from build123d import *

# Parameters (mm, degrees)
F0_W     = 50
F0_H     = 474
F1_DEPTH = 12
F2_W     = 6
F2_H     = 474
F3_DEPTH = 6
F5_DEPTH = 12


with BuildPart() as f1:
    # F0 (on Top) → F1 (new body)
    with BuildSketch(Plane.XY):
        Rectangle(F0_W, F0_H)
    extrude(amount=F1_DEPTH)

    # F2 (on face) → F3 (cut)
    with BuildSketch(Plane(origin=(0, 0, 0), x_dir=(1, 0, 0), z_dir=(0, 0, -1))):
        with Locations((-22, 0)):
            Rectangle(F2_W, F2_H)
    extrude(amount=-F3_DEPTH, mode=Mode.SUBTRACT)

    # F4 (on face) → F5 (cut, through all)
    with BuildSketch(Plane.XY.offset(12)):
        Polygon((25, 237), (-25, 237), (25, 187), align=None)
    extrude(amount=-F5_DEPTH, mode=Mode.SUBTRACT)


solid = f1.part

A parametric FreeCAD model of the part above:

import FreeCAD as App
import Part
import Sketcher
from FreeCAD import Vector

doc = App.newDocument("Part")
body = doc.addObject("PartDesign::Body", "Body")

sketch1 = body.newObject("Sketcher::SketchObject", "Sketch")
sketch1.AttachmentSupport = (doc.getObject("XY_Plane"), [""])
sketch1.MapMode = "FlatFace"
sketch1.addGeometry(Part.LineSegment(Vector(-25, 237, 0), Vector(-25, -237, 0)), False)
sketch1.addGeometry(Part.LineSegment(Vector(-25, -237, 0), Vector(25, -237, 0)), False)
sketch1.addGeometry(Part.LineSegment(Vector(25, -237, 0), Vector(25, 237, 0)), False)
sketch1.addGeometry(Part.LineSegment(Vector(25, 237, 0), Vector(-25, 237, 0)), False)
sketch1.addConstraint(Sketcher.Constraint("Coincident", 0, 2, 1, 1))
sketch1.addConstraint(Sketcher.Constraint("Coincident", 1, 2, 2, 1))
sketch1.addConstraint(Sketcher.Constraint("Coincident", 2, 2, 3, 1))
sketch1.addConstraint(Sketcher.Constraint("Coincident", 3, 2, 0, 1))
sketch1.addConstraint(Sketcher.Constraint("Vertical", 0))
sketch1.addConstraint(Sketcher.Constraint("Horizontal", 1))
sketch1.addConstraint(Sketcher.Constraint("Vertical", 2))
sketch1.addConstraint(Sketcher.Constraint("Horizontal", 3))
sketch1.addConstraint(Sketcher.Constraint("Symmetric", 0, 2, 2, 2, -1, 1))
sketch1.addConstraint(Sketcher.Constraint("DistanceX", 1, 1, 1, 2, 50.0))
sketch1.addConstraint(Sketcher.Constraint("DistanceY", 0, 2, 0, 1, 474.0))
pad1 = body.newObject("PartDesign::Pad", "Pad")
pad1.Profile = sketch1
pad1.Length = 12

sketch2 = body.newObject("Sketcher::SketchObject", "Sketch001")
sketch2.AttachmentSupport = (doc.getObject("XY_Plane"), [""])
sketch2.MapMode = "FlatFace"
sketch2.addGeometry(Part.LineSegment(Vector(-25, -237, 0), Vector(-25, 237, 0)), False)
sketch2.addGeometry(Part.LineSegment(Vector(-25, 237, 0), Vector(-19, 237, 0)), False)
sketch2.addGeometry(Part.LineSegment(Vector(-19, 237, 0), Vector(-19, -237, 0)), False)
sketch2.addGeometry(Part.LineSegment(Vector(-19, -237, 0), Vector(-25, -237, 0)), False)
sketch2.addConstraint(Sketcher.Constraint("Coincident", 0, 2, 1, 1))
sketch2.addConstraint(Sketcher.Constraint("Coincident", 1, 2, 2, 1))
sketch2.addConstraint(Sketcher.Constraint("Coincident", 2, 2, 3, 1))
sketch2.addConstraint(Sketcher.Constraint("Coincident", 3, 2, 0, 1))
sketch2.addConstraint(Sketcher.Constraint("Vertical", 0))
sketch2.addConstraint(Sketcher.Constraint("Horizontal", 1))
sketch2.addConstraint(Sketcher.Constraint("Vertical", 2))
sketch2.addConstraint(Sketcher.Constraint("Horizontal", 3))
sketch2.addConstraint(Sketcher.Constraint("DistanceX", 1, 1, 1, 2, 6.0))
sketch2.addConstraint(Sketcher.Constraint("DistanceY", 0, 1, 0, 2, 474.0))
sketch2.addConstraint(Sketcher.Constraint("DistanceX", 0, 2, -1, 1, 25.0))
sketch2.addConstraint(Sketcher.Constraint("DistanceY", -1, 1, 0, 2, 237.0))
pocket1 = body.newObject("PartDesign::Pocket", "Pocket")
pocket1.Profile = sketch2
pocket1.Length = 6
pocket1.Reversed = True

sketch3 = body.newObject("Sketcher::SketchObject", "Sketch002")
sketch3.AttachmentSupport = (doc.getObject("XY_Plane"), [""])
sketch3.MapMode = "FlatFace"
sketch3.AttachmentOffset = App.Placement(Vector(0, 0, 12), App.Rotation())
sketch3.addGeometry(Part.LineSegment(Vector(25, 237, 0), Vector(-25, 237, 0)), False)
sketch3.addGeometry(Part.LineSegment(Vector(-25, 237, 0), Vector(25, 187, 0)), False)
sketch3.addGeometry(Part.LineSegment(Vector(25, 187, 0), Vector(25, 237, 0)), False)
sketch3.addConstraint(Sketcher.Constraint("Coincident", 0, 2, 1, 1))
sketch3.addConstraint(Sketcher.Constraint("Coincident", 1, 2, 2, 1))
sketch3.addConstraint(Sketcher.Constraint("Coincident", 2, 2, 0, 1))
sketch3.addConstraint(Sketcher.Constraint("Horizontal", 0))
sketch3.addConstraint(Sketcher.Constraint("Vertical", 2))
sketch3.addConstraint(Sketcher.Constraint("Equal", 0, 2))
sketch3.addConstraint(Sketcher.Constraint("DistanceX", 0, 2, 0, 1, 50.0))
sketch3.addConstraint(Sketcher.Constraint("DistanceX", 0, 2, -1, 1, 25.0))
sketch3.addConstraint(Sketcher.Constraint("DistanceY", -1, 1, 0, 2, 237.0))
pocket2 = body.newObject("PartDesign::Pocket", "Pocket001")
pocket2.Profile = sketch3
pocket2.Type = "ThroughAll"

doc.recompute()
